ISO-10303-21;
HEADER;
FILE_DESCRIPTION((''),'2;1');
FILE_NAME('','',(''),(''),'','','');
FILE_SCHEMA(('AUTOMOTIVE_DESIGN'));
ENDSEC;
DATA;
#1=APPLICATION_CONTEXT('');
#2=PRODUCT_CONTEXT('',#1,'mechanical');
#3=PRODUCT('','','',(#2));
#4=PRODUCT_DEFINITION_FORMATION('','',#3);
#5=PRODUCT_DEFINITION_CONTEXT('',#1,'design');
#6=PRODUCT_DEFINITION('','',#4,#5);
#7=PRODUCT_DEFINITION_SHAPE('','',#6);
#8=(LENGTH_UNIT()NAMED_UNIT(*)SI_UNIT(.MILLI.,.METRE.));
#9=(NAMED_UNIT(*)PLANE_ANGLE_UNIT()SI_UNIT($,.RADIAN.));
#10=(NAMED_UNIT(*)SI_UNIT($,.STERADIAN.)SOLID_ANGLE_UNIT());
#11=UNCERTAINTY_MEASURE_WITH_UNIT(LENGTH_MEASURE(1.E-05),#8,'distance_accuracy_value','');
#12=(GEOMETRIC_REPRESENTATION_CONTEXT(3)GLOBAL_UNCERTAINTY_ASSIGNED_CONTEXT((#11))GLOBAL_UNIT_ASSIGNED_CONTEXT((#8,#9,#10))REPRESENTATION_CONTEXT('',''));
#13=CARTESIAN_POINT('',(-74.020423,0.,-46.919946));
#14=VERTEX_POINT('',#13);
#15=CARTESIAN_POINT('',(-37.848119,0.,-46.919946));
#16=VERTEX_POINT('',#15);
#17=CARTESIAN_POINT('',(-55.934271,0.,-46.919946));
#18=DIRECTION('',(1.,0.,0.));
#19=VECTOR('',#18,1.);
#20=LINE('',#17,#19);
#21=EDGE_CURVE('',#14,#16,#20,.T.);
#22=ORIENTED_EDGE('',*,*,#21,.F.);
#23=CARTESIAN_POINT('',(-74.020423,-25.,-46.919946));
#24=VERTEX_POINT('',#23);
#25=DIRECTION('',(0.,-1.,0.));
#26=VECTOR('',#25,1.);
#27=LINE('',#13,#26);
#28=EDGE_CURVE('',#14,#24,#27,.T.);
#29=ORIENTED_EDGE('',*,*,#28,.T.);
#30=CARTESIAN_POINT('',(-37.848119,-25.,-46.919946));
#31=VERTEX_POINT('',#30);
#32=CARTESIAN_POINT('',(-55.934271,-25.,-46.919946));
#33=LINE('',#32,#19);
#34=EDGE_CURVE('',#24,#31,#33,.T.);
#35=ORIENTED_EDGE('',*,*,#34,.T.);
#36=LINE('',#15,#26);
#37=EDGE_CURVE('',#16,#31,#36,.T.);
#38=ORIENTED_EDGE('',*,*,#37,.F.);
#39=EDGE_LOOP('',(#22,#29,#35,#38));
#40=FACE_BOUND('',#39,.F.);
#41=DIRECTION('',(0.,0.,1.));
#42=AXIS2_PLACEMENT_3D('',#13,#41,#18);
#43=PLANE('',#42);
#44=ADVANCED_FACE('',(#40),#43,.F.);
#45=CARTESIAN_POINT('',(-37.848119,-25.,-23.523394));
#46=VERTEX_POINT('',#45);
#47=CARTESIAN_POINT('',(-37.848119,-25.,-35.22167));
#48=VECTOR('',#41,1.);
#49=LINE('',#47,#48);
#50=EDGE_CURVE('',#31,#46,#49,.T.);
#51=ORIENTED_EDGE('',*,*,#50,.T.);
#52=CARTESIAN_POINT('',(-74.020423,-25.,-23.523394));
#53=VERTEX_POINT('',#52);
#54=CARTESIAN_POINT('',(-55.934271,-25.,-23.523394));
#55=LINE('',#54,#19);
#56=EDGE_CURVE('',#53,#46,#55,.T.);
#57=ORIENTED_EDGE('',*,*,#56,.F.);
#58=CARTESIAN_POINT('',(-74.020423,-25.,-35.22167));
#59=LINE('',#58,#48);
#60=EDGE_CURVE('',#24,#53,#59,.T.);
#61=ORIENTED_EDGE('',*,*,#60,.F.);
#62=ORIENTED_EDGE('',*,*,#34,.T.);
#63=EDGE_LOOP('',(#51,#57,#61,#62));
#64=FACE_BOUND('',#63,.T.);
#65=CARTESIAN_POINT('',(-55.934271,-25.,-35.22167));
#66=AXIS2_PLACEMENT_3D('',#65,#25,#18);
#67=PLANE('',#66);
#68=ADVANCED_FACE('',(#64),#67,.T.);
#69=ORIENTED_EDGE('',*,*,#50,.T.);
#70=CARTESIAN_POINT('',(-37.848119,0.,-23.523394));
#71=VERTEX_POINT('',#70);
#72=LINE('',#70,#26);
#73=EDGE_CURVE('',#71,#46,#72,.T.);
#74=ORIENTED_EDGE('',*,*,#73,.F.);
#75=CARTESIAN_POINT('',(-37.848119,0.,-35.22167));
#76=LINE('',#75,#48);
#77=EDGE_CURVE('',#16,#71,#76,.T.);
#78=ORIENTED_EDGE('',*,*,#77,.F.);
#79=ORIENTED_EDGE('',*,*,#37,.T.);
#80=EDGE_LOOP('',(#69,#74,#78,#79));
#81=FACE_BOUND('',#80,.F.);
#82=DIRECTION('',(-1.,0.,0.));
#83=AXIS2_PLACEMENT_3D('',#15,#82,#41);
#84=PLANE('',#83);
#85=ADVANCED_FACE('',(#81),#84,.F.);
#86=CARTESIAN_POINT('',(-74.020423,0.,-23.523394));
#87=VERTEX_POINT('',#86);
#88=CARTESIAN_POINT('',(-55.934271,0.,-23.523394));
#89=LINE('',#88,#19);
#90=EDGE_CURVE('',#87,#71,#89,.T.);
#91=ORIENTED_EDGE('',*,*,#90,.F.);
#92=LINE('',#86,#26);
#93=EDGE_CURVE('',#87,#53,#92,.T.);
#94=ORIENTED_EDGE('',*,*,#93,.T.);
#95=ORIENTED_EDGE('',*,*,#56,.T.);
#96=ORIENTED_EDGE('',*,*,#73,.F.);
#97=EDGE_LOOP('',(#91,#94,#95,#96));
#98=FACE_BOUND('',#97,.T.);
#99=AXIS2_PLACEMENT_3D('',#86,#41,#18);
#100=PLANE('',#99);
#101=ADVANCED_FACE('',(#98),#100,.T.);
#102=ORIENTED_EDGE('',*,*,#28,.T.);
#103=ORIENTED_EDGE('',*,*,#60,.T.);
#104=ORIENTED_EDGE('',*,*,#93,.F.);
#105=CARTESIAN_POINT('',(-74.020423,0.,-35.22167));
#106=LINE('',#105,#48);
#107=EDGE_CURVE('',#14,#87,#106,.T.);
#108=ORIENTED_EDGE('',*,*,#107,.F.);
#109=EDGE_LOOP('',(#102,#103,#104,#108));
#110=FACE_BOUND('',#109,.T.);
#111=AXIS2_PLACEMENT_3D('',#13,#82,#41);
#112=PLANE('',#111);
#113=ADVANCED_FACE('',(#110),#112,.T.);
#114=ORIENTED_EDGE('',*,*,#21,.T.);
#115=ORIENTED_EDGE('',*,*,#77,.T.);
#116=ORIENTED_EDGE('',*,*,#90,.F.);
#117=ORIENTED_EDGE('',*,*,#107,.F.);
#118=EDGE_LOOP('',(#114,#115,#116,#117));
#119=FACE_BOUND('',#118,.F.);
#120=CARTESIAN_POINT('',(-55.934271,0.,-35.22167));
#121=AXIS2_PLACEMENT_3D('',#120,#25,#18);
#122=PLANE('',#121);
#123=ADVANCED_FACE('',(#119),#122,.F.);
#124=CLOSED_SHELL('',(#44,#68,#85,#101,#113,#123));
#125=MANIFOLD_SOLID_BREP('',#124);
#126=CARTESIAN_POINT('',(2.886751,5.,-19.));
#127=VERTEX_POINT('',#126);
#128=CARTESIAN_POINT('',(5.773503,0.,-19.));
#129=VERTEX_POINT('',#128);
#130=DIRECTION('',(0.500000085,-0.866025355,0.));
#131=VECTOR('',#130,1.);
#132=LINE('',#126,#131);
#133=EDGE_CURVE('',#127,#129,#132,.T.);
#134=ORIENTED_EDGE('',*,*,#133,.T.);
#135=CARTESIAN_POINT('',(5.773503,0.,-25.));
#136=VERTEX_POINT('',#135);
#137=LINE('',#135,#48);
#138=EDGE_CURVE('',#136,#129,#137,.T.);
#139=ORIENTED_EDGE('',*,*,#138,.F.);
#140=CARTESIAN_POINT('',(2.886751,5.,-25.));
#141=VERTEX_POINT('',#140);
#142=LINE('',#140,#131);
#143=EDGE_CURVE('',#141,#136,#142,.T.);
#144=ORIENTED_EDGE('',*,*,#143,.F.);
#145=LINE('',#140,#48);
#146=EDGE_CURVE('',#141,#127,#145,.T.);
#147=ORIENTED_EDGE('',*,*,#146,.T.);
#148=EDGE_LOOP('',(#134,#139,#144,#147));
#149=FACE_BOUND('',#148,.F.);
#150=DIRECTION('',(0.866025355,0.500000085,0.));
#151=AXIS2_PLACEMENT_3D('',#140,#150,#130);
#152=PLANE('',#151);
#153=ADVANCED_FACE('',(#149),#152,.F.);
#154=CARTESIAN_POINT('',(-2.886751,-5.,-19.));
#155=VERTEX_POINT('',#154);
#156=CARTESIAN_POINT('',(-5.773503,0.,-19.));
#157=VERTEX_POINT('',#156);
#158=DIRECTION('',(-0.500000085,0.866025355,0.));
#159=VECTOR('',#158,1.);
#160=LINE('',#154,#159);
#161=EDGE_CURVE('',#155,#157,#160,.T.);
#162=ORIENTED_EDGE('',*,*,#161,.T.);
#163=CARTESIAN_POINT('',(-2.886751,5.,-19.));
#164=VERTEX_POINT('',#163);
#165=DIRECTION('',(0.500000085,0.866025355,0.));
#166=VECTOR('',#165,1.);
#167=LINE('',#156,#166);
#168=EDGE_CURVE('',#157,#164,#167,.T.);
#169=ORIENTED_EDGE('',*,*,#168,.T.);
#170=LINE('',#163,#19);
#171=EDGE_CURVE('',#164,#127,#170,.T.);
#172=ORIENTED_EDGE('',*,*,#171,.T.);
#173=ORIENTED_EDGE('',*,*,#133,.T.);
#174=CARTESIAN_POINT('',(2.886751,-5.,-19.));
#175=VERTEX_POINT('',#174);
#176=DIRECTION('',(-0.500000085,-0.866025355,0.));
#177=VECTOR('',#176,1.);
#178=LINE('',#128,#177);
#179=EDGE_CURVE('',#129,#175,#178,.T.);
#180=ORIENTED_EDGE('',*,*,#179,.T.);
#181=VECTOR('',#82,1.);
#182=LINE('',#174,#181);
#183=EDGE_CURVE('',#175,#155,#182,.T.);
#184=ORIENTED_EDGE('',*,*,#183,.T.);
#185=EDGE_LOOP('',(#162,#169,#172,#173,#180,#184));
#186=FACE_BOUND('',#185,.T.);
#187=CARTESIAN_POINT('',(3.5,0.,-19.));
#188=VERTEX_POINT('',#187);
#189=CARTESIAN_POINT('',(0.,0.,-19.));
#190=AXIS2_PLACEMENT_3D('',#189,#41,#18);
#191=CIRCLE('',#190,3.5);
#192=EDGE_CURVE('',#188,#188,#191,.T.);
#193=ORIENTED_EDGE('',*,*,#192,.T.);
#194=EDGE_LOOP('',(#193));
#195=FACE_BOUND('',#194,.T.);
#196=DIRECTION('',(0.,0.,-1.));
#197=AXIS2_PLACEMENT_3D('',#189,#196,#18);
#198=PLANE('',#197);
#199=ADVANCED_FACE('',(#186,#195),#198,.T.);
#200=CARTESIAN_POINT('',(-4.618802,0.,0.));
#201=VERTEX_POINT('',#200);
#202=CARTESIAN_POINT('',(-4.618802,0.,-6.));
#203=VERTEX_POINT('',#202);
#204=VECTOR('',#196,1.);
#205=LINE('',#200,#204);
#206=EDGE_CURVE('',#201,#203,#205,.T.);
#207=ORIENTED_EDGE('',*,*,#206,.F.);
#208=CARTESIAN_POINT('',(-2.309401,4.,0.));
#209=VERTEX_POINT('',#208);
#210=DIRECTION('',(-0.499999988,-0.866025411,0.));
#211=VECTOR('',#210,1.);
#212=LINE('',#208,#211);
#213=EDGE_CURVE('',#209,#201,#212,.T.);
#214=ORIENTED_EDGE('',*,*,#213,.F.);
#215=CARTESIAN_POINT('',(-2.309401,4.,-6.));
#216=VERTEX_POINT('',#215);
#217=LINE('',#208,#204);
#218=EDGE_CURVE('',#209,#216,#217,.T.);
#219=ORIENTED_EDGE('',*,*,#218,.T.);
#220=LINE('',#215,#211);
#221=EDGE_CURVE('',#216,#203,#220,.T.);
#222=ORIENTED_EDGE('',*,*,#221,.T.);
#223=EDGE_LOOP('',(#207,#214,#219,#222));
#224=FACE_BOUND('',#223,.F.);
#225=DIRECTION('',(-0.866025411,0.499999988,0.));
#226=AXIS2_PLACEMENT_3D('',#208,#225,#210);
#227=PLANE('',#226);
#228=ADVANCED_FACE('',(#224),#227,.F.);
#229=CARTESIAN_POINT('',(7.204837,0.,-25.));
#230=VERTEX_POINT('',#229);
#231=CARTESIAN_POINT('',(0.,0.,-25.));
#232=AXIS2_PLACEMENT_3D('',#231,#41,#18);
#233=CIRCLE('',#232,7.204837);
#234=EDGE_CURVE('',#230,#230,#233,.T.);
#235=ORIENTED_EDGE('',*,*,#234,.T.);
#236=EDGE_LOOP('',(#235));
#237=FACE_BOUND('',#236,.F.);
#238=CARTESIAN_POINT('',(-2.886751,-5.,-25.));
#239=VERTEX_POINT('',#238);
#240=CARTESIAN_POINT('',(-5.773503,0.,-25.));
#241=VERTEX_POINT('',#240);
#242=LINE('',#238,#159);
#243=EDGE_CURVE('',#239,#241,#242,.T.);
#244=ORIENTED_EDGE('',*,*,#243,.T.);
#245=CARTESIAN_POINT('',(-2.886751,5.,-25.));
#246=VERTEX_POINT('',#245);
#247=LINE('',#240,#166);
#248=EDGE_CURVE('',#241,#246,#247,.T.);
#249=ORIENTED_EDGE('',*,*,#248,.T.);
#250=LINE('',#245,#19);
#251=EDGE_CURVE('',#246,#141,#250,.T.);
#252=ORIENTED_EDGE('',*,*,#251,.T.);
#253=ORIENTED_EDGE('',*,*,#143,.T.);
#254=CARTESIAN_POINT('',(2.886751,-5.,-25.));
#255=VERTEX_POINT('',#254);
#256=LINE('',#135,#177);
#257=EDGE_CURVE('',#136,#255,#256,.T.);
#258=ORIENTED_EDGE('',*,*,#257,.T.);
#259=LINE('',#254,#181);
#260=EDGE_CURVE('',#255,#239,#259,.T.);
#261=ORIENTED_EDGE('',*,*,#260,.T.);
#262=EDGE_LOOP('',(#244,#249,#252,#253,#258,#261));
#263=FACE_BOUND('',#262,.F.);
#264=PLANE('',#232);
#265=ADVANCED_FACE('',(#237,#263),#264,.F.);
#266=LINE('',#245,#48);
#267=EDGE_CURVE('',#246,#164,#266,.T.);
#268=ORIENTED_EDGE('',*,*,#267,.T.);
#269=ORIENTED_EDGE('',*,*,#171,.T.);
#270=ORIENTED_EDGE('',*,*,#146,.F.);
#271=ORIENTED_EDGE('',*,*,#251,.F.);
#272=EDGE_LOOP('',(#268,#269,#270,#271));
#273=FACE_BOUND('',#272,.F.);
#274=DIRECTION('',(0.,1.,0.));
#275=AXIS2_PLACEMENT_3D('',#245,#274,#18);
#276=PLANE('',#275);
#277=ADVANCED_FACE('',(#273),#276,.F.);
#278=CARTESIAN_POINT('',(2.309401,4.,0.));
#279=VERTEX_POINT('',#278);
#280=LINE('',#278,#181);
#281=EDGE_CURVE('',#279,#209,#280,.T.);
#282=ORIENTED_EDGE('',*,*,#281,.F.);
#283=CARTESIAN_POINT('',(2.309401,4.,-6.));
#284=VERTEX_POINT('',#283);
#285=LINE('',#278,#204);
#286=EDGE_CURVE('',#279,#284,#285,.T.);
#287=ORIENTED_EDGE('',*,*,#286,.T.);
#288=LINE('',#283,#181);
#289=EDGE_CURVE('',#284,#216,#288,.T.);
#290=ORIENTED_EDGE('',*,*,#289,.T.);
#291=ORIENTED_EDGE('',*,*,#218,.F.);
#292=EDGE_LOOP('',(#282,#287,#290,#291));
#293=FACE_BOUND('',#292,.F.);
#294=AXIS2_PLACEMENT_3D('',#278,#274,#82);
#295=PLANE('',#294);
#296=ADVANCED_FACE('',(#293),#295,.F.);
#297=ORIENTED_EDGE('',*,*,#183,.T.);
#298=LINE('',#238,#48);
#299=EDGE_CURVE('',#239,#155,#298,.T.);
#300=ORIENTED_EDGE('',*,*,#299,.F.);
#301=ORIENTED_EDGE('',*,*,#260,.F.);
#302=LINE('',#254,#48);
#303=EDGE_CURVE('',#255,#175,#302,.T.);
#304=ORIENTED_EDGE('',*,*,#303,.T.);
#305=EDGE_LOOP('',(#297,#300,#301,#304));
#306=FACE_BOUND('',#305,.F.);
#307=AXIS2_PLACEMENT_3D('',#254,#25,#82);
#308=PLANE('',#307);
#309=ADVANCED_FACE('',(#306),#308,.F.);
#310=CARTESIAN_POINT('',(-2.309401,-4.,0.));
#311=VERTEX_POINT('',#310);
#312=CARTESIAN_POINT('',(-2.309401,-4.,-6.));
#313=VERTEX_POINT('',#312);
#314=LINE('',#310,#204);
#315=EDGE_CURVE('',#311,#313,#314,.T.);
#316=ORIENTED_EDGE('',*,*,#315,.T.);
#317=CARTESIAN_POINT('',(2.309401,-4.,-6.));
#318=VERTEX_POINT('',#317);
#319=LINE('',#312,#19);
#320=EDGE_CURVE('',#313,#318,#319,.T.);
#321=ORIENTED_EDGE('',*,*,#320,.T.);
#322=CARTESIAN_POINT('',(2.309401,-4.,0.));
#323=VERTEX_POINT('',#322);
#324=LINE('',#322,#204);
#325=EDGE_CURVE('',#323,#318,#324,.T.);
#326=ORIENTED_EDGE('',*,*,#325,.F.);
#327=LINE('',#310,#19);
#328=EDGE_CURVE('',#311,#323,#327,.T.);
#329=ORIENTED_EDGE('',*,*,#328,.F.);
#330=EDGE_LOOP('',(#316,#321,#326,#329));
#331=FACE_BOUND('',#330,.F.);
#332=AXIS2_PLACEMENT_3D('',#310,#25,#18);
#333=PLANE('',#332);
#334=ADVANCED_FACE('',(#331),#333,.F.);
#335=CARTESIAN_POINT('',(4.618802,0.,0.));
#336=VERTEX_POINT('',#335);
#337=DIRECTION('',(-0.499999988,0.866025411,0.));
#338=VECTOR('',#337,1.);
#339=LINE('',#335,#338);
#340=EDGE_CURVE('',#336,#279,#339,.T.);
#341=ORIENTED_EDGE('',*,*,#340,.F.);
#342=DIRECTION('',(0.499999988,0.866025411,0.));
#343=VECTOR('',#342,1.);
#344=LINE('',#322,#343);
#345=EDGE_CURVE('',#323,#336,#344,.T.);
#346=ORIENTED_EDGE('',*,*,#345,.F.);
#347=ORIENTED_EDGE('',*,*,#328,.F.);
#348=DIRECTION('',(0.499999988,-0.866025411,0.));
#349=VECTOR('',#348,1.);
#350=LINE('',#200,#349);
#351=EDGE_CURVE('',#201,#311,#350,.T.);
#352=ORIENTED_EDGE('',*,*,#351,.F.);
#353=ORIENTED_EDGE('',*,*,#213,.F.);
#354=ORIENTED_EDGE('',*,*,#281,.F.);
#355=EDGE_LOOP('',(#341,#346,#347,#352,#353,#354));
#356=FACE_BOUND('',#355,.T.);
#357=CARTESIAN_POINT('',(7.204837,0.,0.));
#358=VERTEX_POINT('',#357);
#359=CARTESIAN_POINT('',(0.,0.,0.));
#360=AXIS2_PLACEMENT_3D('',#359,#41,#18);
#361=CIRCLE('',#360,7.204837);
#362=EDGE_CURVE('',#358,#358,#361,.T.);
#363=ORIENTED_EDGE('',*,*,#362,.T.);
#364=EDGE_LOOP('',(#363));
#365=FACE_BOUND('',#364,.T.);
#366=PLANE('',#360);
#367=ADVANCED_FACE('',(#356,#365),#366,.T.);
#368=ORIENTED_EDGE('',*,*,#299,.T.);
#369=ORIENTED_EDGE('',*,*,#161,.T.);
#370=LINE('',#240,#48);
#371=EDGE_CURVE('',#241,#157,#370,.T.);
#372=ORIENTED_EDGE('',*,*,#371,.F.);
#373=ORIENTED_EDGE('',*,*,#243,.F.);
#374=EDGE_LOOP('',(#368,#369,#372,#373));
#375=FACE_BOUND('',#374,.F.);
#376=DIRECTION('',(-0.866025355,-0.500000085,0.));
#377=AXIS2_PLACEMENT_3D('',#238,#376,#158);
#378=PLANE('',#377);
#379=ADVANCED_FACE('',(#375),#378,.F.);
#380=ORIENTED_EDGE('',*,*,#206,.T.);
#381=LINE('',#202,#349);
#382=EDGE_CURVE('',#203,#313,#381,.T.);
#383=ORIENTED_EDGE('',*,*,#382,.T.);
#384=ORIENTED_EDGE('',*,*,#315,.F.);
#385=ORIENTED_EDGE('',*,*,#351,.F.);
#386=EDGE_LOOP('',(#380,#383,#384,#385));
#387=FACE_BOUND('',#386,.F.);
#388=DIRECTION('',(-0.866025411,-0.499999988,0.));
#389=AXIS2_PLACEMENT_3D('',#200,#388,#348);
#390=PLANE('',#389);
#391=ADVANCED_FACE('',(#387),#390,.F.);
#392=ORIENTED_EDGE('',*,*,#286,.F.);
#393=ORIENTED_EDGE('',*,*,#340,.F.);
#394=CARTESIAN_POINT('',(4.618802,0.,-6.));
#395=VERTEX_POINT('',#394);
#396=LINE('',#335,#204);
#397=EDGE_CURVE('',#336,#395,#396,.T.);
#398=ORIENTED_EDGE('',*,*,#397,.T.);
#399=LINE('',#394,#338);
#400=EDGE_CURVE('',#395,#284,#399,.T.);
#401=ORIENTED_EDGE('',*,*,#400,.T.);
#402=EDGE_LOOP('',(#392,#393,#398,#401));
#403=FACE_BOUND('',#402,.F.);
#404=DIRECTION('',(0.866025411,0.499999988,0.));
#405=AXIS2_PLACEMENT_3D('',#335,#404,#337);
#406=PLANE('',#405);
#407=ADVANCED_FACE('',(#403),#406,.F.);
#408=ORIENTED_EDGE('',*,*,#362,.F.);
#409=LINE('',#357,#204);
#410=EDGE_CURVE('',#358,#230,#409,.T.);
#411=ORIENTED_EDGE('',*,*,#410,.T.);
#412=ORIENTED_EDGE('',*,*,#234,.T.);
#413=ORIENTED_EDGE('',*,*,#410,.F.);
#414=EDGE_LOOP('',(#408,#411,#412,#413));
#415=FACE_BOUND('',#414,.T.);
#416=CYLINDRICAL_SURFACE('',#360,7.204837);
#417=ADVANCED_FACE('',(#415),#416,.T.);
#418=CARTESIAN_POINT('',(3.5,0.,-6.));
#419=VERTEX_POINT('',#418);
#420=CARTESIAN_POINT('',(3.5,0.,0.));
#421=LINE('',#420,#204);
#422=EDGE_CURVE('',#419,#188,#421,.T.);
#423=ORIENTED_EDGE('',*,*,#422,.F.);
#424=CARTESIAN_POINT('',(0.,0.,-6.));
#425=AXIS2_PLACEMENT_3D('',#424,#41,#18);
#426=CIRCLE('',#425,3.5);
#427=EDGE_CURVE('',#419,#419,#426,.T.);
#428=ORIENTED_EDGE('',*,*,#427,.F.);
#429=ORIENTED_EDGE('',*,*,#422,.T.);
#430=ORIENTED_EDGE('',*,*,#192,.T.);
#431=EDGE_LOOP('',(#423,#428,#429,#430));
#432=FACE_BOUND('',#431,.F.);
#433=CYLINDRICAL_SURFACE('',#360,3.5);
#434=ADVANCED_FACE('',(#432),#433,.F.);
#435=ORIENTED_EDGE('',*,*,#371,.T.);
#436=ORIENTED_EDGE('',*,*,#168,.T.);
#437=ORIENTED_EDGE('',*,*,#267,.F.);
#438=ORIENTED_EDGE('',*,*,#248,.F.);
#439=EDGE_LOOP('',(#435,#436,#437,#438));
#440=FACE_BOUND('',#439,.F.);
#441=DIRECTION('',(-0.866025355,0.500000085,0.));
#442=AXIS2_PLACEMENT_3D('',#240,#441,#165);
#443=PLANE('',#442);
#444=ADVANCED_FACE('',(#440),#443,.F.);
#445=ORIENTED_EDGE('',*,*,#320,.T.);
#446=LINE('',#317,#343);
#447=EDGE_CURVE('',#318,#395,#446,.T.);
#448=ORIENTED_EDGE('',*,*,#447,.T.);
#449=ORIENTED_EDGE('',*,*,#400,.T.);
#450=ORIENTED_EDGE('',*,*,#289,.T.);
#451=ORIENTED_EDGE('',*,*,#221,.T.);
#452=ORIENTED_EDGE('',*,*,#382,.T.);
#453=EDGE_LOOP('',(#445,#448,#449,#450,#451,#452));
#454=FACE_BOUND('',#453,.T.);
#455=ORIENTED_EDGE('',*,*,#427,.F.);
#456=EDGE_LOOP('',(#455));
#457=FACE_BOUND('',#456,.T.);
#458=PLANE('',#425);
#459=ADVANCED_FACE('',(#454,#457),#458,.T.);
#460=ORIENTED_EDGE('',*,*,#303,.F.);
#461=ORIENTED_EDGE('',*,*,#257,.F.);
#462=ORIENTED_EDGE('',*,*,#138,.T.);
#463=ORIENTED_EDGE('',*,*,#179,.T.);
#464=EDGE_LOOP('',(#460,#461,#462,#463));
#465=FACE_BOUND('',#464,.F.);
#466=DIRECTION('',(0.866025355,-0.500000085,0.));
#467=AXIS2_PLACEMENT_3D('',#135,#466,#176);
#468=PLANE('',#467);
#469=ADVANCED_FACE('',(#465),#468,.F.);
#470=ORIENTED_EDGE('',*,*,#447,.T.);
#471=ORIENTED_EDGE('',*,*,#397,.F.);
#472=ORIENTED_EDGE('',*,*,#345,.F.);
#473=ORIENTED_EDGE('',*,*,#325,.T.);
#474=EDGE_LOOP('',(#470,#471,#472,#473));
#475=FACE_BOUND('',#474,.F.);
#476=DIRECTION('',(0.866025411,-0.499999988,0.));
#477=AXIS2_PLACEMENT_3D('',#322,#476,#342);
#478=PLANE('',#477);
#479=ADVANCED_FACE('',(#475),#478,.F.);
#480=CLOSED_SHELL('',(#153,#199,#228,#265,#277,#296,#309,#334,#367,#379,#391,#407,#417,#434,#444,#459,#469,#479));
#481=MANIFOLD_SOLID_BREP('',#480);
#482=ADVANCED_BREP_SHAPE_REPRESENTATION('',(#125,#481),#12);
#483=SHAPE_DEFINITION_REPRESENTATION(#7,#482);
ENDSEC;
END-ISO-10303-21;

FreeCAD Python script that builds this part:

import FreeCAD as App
import Part
import Sketcher
from FreeCAD import Vector
Q = App.Units.Quantity


def add_polygon(sketch, points):
    """Adds a closed chain of lines whose ends are joined by coincident constraints."""
    first, n = sketch.GeometryCount, len(points)
    for a, b in zip(points, points[1:] + points[:1]):
        sketch.addGeometry(Part.LineSegment(App.Vector(*a, 0), App.Vector(*b, 0)), False)
    for i in range(n):
        sketch.addConstraint(Sketcher.Constraint("Coincident", first + i, 2, first + (i + 1) % n, 1))

doc = App.newDocument("Part")
body = doc.addObject("PartDesign::Body", "Body")

# Sketch on XY plane
sketch1 = body.newObject("Sketcher::SketchObject", "Sketch")
sketch1.AttachmentSupport = (doc.getObject("XY_Plane"), [""])
sketch1.MapMode = "FlatFace"
sketch1.addGeometry(Part.Circle(Vector(0, 0, 0), Vector(0, 0, 1), 7.204837), False)
sketch1.addConstraint(Sketcher.Constraint("Coincident", 0, 3, -1, 1))
sketch1.addConstraint(Sketcher.Constraint("Diameter", 0, Q("14.409674 mm")))
pad1 = body.newObject("PartDesign::Pad", "Pad")
pad1.Profile = sketch1
pad1.Length = 25
pad1.Reversed = True

# Sketch on XY plane
sketch2 = body.newObject("Sketcher::SketchObject", "Sketch001")
sketch2.AttachmentSupport = (doc.getObject("XY_Plane"), [""])
sketch2.MapMode = "FlatFace"
add_polygon(sketch2, [(-2.309401, -4), (2.309401, -4), (4.618802, 0), (2.309401, 4), (-2.309401, 4), (-4.618802, 0)])  # lines 0-5
sketch2.addConstraint(Sketcher.Constraint("Horizontal", 0))
sketch2.addConstraint(Sketcher.Constraint("Horizontal", 3))
sketch2.addConstraint(Sketcher.Constraint("Symmetric", 0, 2, 3, 2, -1, 1))
sketch2.addConstraint(Sketcher.Constraint("Symmetric", 1, 2, 4, 2, -1, 1))
sketch2.addConstraint(Sketcher.Constraint("PointOnObject", 1, 2, -1))
sketch2.addConstraint(Sketcher.Constraint("Parallel", 2, 5))
sketch2.addConstraint(Sketcher.Constraint("Vertical", 0, 2, 2, 2))
sketch2.addConstraint(Sketcher.Constraint("Angle", 1, Q("60.000001 deg")))
sketch2.addConstraint(Sketcher.Constraint("DistanceY", 0, 2, -1, 1, Q("4 mm")))
sketch2.addConstraint(Sketcher.Constraint("DistanceX", 0, 1, 0, 2, Q("4.618802 mm")))
pocket1 = body.newObject("PartDesign::Pocket", "Pocket")
pocket1.Profile = sketch2
pocket1.Length = 6

# Sketch on XY plane
sketch3 = body.newObject("Sketcher::SketchObject", "Sketch002")
sketch3.AttachmentSupport = (doc.getObject("XY_Plane"), [""])
sketch3.MapMode = "FlatFace"
sketch3.AttachmentOffset = App.Placement(Vector(0, 0, -25), App.Rotation())
add_polygon(sketch3, [(2.886751, -5), (-2.886751, -5), (-5.773503, 0), (-2.886751, 5), (2.886751, 5), (5.773503, 0)])  # lines 0-5
sketch3.addConstraint(Sketcher.Constraint("Horizontal", 0))
sketch3.addConstraint(Sketcher.Constraint("Horizontal", 3))
sketch3.addConstraint(Sketcher.Constraint("Symmetric", 0, 2, 3, 2, -1, 1))
sketch3.addConstraint(Sketcher.Constraint("Symmetric", 1, 2, 4, 2, -1, 1))
sketch3.addConstraint(Sketcher.Constraint("PointOnObject", 1, 2, -1))
sketch3.addConstraint(Sketcher.Constraint("Parallel", 2, 5))
sketch3.addConstraint(Sketcher.Constraint("Vertical", 0, 2, 2, 2))
sketch3.addConstraint(Sketcher.Constraint("Angle", 1, Q("120.000006 deg")))
sketch3.addConstraint(Sketcher.Constraint("DistanceY", 0, 2, -1, 1, Q("5 mm")))
sketch3.addConstraint(Sketcher.Constraint("DistanceX", 0, 2, 0, 1, Q("5.773502 mm")))
pocket2 = body.newObject("PartDesign::Pocket", "Pocket001")
pocket2.Profile = sketch3
pocket2.Length = 6
pocket2.Reversed = True

# Sketch on XY plane
sketch4 = body.newObject("Sketcher::SketchObject", "Sketch003")
sketch4.AttachmentSupport = (doc.getObject("XY_Plane"), [""])
sketch4.MapMode = "FlatFace"
sketch4.addGeometry(Part.Circle(Vector(0, 0, 0), Vector(0, 0, 1), 3.5), False)
sketch4.addConstraint(Sketcher.Constraint("Coincident", 0, 3, -1, 1))
sketch4.addConstraint(Sketcher.Constraint("Diameter", 0, Q("7 mm")))
pocket3 = body.newObject("PartDesign::Pocket", "Pocket002")
pocket3.Profile = sketch4
pocket3.Length = 25
body2 = doc.addObject("PartDesign::Body", "Body001")

# Sketch on XZ plane
sketch5 = body2.newObject("Sketcher::SketchObject", "Sketch004")
sketch5.AttachmentSupport = (doc.getObject("XZ_Plane001"), [""])
sketch5.MapMode = "FlatFace"
add_polygon(sketch5, [(-74.020423, -23.523394), (-74.020423, -46.919946), (-37.848119, -46.919946), (-37.848119, -23.523394)])  # lines 0-3
sketch5.addConstraint(Sketcher.Constraint("Vertical", 0))
sketch5.addConstraint(Sketcher.Constraint("Horizontal", 1))
sketch5.addConstraint(Sketcher.Constraint("Vertical", 2))
sketch5.addConstraint(Sketcher.Constraint("Horizontal", 3))
sketch5.addConstraint(Sketcher.Constraint("DistanceX", 1, 1, 1, 2, Q("36.172304 mm")))
sketch5.addConstraint(Sketcher.Constraint("DistanceY", 0, 2, 0, 1, Q("23.396552 mm")))
sketch5.addConstraint(Sketcher.Constraint("DistanceX", 1, 2, -1, 1, Q("37.848119 mm")))
sketch5.addConstraint(Sketcher.Constraint("DistanceY", 0, 2, -1, 1, Q("46.919946 mm")))
pad2 = body2.newObject("PartDesign::Pad", "Pad001")
pad2.Profile = sketch5
pad2.Length = 25

doc.recompute()
